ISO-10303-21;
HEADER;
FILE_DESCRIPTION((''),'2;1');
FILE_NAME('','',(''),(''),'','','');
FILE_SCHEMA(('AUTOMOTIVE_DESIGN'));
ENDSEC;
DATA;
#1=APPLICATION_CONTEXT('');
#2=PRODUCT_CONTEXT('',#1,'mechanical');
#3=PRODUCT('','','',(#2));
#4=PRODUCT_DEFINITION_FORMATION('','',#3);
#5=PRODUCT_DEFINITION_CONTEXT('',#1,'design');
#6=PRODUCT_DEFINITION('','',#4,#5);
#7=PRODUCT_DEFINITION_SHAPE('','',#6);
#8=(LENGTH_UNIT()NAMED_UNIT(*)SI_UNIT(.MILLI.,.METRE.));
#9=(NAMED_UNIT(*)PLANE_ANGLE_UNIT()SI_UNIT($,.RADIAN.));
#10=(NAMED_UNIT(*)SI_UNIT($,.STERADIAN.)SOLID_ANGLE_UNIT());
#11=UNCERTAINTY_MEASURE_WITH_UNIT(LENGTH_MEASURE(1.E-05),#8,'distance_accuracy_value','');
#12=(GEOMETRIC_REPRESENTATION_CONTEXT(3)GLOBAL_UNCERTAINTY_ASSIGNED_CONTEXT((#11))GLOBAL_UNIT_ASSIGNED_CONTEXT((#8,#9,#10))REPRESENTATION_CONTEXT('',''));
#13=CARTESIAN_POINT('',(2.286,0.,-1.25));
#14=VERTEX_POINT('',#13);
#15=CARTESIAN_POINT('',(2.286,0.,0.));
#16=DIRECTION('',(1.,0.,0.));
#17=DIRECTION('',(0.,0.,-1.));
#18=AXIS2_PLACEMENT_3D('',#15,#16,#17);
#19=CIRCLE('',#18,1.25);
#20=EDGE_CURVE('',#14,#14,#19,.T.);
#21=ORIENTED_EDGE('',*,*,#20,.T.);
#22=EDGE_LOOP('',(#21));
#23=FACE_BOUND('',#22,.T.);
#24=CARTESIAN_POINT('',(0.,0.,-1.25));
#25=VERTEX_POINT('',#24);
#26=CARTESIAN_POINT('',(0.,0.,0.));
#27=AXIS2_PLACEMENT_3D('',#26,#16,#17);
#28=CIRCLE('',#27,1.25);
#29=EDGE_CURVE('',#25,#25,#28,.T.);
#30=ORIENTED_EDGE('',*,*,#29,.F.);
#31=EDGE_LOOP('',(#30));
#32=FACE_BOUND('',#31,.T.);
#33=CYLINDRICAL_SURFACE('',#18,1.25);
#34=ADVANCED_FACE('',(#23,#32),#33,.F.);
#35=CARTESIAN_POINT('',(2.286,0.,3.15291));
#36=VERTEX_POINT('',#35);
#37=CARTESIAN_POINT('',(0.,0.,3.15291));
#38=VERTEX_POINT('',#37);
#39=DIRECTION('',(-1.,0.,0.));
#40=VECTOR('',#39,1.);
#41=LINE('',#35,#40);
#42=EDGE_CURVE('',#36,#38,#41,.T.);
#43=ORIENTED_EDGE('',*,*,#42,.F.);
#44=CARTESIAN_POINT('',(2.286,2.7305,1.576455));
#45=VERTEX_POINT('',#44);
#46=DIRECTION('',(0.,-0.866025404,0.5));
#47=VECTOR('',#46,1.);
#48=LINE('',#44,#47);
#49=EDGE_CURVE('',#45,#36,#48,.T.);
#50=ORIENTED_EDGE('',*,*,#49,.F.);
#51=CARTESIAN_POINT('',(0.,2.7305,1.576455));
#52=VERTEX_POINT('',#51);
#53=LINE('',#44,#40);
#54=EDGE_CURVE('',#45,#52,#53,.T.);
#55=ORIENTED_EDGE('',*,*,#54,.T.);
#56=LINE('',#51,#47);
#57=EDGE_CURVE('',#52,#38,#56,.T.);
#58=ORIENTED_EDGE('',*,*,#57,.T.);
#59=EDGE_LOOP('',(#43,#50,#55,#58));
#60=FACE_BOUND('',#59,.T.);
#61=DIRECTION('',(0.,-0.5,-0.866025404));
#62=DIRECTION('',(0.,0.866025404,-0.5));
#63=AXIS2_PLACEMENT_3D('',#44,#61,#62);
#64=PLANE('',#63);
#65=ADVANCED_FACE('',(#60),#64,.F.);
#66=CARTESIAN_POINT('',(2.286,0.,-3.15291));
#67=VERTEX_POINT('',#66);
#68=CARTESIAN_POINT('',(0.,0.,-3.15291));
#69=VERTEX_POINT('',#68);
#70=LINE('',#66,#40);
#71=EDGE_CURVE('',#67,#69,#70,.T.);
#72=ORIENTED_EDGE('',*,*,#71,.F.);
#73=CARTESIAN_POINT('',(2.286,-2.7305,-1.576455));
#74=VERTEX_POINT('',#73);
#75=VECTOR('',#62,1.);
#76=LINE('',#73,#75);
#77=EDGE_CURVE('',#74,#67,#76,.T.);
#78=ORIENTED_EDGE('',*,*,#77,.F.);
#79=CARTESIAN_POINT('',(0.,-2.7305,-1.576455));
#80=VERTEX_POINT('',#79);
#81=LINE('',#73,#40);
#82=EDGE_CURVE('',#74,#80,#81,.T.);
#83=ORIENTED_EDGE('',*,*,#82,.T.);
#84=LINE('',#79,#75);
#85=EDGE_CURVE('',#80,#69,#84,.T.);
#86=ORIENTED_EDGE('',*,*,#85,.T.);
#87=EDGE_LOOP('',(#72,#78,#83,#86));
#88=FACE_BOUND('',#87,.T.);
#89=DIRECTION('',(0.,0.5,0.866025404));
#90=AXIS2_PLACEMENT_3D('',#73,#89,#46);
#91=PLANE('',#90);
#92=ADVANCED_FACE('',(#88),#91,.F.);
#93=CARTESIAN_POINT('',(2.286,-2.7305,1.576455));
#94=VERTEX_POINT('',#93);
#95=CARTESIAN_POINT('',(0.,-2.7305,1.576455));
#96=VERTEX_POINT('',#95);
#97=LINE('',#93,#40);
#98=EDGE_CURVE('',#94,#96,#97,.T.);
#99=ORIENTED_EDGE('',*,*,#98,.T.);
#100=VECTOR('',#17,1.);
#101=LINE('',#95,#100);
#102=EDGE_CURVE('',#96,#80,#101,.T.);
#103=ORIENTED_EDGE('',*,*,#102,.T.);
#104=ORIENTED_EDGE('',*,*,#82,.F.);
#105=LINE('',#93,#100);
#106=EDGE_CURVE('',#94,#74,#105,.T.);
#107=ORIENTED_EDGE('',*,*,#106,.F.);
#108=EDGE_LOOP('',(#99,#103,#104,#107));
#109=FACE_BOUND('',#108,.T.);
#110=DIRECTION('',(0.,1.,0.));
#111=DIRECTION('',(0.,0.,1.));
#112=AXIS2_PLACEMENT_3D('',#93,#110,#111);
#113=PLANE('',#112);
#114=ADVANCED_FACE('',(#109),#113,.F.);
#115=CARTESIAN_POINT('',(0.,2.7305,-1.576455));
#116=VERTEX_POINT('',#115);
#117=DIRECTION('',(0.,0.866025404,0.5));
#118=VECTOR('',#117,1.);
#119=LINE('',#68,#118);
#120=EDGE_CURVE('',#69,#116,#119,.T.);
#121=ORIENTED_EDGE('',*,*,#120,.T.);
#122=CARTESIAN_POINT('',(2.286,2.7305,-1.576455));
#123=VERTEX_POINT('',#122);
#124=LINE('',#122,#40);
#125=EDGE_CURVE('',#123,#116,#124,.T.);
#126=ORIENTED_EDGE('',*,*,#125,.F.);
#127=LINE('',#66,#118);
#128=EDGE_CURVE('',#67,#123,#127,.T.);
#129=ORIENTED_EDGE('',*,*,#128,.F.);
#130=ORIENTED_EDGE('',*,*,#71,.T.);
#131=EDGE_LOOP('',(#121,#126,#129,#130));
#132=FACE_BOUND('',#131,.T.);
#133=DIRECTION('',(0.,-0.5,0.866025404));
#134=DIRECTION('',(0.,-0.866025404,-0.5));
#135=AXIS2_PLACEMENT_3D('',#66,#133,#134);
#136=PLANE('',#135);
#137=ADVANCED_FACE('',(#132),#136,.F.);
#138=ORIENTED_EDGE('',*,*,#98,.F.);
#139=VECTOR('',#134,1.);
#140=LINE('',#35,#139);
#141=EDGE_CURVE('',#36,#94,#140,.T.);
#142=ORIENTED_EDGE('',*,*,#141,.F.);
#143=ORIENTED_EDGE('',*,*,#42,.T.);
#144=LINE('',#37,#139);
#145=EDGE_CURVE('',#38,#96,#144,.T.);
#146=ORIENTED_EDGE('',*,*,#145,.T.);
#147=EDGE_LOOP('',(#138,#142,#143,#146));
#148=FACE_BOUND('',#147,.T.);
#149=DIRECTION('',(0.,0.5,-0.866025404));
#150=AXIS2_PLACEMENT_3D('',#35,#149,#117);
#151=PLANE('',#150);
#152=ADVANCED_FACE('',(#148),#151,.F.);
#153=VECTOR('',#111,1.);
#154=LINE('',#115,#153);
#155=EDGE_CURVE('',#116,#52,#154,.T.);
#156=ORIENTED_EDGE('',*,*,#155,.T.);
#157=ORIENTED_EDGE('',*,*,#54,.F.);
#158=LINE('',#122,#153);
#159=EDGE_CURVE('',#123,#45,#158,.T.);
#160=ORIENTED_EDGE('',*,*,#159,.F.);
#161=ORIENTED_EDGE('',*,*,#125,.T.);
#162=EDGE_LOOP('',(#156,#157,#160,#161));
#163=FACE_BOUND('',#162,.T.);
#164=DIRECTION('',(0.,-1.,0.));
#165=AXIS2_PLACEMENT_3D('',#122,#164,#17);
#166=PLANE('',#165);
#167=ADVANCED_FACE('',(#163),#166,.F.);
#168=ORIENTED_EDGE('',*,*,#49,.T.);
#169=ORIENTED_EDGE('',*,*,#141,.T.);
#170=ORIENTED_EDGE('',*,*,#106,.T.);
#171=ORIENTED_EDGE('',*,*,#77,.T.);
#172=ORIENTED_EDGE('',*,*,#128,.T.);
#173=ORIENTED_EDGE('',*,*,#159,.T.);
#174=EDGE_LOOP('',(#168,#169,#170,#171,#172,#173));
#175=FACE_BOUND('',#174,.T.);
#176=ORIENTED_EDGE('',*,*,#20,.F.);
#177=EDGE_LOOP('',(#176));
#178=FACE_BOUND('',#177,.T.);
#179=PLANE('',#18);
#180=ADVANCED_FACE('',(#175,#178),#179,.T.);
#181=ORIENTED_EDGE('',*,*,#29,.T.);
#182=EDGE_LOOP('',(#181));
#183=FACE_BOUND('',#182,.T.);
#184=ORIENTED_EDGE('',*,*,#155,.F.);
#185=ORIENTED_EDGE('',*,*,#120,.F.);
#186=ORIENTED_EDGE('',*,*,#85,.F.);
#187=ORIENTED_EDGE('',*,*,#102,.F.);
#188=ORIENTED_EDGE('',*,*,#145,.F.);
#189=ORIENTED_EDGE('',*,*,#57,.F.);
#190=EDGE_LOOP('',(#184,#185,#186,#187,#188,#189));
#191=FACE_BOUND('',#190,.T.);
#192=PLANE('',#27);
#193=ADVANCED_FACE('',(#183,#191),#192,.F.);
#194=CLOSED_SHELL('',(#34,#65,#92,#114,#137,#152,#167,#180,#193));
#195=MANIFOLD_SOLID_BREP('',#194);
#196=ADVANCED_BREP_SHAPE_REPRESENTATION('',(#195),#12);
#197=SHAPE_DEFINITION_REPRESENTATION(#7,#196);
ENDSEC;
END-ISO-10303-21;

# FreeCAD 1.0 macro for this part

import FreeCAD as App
import Part
import Sketcher
from FreeCAD import Vector
Q = App.Units.Quantity


def add_polygon(sketch, points):
    """Adds a closed chain of lines whose ends are joined by coincident constraints."""
    first, n = sketch.GeometryCount, len(points)
    for a, b in zip(points, points[1:] + points[:1]):
        sketch.addGeometry(Part.LineSegment(App.Vector(*a, 0), App.Vector(*b, 0)), False)
    for i in range(n):
        sketch.addConstraint(Sketcher.Constraint("Coincident", first + i, 2, first + (i + 1) % n, 1))

doc = App.newDocument("Part")
body = doc.addObject("PartDesign::Body", "Body")

sketch1 = body.newObject("Sketcher::SketchObject", "Sketch")
sketch1.AttachmentSupport = (doc.getObject("YZ_Plane"), [""])
sketch1.MapMode = "FlatFace"
add_polygon(sketch1, [(0, -3.15291), (2.7305, -1.576455), (2.7305, 1.576455), (0, 3.15291), (-2.7305, 1.576455), (-2.7305, -1.576455)])
sketch1.addConstraint([
    Sketcher.Constraint("Vertical", 1),
    Sketcher.Constraint("Vertical", 4),
    Sketcher.Constraint("Symmetric", 0, 2, 3, 2, -1, 1),
    Sketcher.Constraint("Symmetric", 2, 2, 5, 2, -1, 1),
    Sketcher.Constraint("PointOnObject", 2, 2, -2),
    Sketcher.Constraint("Parallel", 2, 5),
    Sketcher.Constraint("Horizontal", 1, 2, 3, 2),
    Sketcher.Constraint("Angle", 0, Q("30 deg")),
    Sketcher.Constraint("DistanceX", 3, 2, 1, 2, Q("0.215 in")),
    Sketcher.Constraint("DistanceY", 1, 1, 1, 2, Q("3.15291 mm")),
])
pad1 = body.newObject("PartDesign::Pad", "Pad")
pad1.Profile = sketch1
pad1.Length = Q("0.09 in")

sketch2 = body.newObject("Sketcher::SketchObject", "Sketch001")
sketch2.AttachmentSupport = (doc.getObject("YZ_Plane"), [""])
sketch2.MapMode = "FlatFace"
sketch2.AttachmentOffset = App.Placement(Vector(0, 0, 0.09 * 25.4), App.Rotation())
sketch2.addGeometry(Part.Circle(Vector(0, 0, 0), Vector(0, 0, 1), 1.25), False)
sketch2.addConstraint([
    Sketcher.Constraint("Coincident", 0, 3, -1, 1),
    Sketcher.Constraint("Diameter", 0, Q("2.5 mm")),
])
doc.recompute()
hole = body.newObject("PartDesign::Hole", "Hole")
hole.Profile = sketch2
hole.ThreadType = "None"
hole.Diameter = 2.5
hole.DepthType = "Dimension"
hole.Depth = Q("1 in")
hole.DrillPoint = "Angled"
hole.DrillPointAngle = 118

doc.recompute()
